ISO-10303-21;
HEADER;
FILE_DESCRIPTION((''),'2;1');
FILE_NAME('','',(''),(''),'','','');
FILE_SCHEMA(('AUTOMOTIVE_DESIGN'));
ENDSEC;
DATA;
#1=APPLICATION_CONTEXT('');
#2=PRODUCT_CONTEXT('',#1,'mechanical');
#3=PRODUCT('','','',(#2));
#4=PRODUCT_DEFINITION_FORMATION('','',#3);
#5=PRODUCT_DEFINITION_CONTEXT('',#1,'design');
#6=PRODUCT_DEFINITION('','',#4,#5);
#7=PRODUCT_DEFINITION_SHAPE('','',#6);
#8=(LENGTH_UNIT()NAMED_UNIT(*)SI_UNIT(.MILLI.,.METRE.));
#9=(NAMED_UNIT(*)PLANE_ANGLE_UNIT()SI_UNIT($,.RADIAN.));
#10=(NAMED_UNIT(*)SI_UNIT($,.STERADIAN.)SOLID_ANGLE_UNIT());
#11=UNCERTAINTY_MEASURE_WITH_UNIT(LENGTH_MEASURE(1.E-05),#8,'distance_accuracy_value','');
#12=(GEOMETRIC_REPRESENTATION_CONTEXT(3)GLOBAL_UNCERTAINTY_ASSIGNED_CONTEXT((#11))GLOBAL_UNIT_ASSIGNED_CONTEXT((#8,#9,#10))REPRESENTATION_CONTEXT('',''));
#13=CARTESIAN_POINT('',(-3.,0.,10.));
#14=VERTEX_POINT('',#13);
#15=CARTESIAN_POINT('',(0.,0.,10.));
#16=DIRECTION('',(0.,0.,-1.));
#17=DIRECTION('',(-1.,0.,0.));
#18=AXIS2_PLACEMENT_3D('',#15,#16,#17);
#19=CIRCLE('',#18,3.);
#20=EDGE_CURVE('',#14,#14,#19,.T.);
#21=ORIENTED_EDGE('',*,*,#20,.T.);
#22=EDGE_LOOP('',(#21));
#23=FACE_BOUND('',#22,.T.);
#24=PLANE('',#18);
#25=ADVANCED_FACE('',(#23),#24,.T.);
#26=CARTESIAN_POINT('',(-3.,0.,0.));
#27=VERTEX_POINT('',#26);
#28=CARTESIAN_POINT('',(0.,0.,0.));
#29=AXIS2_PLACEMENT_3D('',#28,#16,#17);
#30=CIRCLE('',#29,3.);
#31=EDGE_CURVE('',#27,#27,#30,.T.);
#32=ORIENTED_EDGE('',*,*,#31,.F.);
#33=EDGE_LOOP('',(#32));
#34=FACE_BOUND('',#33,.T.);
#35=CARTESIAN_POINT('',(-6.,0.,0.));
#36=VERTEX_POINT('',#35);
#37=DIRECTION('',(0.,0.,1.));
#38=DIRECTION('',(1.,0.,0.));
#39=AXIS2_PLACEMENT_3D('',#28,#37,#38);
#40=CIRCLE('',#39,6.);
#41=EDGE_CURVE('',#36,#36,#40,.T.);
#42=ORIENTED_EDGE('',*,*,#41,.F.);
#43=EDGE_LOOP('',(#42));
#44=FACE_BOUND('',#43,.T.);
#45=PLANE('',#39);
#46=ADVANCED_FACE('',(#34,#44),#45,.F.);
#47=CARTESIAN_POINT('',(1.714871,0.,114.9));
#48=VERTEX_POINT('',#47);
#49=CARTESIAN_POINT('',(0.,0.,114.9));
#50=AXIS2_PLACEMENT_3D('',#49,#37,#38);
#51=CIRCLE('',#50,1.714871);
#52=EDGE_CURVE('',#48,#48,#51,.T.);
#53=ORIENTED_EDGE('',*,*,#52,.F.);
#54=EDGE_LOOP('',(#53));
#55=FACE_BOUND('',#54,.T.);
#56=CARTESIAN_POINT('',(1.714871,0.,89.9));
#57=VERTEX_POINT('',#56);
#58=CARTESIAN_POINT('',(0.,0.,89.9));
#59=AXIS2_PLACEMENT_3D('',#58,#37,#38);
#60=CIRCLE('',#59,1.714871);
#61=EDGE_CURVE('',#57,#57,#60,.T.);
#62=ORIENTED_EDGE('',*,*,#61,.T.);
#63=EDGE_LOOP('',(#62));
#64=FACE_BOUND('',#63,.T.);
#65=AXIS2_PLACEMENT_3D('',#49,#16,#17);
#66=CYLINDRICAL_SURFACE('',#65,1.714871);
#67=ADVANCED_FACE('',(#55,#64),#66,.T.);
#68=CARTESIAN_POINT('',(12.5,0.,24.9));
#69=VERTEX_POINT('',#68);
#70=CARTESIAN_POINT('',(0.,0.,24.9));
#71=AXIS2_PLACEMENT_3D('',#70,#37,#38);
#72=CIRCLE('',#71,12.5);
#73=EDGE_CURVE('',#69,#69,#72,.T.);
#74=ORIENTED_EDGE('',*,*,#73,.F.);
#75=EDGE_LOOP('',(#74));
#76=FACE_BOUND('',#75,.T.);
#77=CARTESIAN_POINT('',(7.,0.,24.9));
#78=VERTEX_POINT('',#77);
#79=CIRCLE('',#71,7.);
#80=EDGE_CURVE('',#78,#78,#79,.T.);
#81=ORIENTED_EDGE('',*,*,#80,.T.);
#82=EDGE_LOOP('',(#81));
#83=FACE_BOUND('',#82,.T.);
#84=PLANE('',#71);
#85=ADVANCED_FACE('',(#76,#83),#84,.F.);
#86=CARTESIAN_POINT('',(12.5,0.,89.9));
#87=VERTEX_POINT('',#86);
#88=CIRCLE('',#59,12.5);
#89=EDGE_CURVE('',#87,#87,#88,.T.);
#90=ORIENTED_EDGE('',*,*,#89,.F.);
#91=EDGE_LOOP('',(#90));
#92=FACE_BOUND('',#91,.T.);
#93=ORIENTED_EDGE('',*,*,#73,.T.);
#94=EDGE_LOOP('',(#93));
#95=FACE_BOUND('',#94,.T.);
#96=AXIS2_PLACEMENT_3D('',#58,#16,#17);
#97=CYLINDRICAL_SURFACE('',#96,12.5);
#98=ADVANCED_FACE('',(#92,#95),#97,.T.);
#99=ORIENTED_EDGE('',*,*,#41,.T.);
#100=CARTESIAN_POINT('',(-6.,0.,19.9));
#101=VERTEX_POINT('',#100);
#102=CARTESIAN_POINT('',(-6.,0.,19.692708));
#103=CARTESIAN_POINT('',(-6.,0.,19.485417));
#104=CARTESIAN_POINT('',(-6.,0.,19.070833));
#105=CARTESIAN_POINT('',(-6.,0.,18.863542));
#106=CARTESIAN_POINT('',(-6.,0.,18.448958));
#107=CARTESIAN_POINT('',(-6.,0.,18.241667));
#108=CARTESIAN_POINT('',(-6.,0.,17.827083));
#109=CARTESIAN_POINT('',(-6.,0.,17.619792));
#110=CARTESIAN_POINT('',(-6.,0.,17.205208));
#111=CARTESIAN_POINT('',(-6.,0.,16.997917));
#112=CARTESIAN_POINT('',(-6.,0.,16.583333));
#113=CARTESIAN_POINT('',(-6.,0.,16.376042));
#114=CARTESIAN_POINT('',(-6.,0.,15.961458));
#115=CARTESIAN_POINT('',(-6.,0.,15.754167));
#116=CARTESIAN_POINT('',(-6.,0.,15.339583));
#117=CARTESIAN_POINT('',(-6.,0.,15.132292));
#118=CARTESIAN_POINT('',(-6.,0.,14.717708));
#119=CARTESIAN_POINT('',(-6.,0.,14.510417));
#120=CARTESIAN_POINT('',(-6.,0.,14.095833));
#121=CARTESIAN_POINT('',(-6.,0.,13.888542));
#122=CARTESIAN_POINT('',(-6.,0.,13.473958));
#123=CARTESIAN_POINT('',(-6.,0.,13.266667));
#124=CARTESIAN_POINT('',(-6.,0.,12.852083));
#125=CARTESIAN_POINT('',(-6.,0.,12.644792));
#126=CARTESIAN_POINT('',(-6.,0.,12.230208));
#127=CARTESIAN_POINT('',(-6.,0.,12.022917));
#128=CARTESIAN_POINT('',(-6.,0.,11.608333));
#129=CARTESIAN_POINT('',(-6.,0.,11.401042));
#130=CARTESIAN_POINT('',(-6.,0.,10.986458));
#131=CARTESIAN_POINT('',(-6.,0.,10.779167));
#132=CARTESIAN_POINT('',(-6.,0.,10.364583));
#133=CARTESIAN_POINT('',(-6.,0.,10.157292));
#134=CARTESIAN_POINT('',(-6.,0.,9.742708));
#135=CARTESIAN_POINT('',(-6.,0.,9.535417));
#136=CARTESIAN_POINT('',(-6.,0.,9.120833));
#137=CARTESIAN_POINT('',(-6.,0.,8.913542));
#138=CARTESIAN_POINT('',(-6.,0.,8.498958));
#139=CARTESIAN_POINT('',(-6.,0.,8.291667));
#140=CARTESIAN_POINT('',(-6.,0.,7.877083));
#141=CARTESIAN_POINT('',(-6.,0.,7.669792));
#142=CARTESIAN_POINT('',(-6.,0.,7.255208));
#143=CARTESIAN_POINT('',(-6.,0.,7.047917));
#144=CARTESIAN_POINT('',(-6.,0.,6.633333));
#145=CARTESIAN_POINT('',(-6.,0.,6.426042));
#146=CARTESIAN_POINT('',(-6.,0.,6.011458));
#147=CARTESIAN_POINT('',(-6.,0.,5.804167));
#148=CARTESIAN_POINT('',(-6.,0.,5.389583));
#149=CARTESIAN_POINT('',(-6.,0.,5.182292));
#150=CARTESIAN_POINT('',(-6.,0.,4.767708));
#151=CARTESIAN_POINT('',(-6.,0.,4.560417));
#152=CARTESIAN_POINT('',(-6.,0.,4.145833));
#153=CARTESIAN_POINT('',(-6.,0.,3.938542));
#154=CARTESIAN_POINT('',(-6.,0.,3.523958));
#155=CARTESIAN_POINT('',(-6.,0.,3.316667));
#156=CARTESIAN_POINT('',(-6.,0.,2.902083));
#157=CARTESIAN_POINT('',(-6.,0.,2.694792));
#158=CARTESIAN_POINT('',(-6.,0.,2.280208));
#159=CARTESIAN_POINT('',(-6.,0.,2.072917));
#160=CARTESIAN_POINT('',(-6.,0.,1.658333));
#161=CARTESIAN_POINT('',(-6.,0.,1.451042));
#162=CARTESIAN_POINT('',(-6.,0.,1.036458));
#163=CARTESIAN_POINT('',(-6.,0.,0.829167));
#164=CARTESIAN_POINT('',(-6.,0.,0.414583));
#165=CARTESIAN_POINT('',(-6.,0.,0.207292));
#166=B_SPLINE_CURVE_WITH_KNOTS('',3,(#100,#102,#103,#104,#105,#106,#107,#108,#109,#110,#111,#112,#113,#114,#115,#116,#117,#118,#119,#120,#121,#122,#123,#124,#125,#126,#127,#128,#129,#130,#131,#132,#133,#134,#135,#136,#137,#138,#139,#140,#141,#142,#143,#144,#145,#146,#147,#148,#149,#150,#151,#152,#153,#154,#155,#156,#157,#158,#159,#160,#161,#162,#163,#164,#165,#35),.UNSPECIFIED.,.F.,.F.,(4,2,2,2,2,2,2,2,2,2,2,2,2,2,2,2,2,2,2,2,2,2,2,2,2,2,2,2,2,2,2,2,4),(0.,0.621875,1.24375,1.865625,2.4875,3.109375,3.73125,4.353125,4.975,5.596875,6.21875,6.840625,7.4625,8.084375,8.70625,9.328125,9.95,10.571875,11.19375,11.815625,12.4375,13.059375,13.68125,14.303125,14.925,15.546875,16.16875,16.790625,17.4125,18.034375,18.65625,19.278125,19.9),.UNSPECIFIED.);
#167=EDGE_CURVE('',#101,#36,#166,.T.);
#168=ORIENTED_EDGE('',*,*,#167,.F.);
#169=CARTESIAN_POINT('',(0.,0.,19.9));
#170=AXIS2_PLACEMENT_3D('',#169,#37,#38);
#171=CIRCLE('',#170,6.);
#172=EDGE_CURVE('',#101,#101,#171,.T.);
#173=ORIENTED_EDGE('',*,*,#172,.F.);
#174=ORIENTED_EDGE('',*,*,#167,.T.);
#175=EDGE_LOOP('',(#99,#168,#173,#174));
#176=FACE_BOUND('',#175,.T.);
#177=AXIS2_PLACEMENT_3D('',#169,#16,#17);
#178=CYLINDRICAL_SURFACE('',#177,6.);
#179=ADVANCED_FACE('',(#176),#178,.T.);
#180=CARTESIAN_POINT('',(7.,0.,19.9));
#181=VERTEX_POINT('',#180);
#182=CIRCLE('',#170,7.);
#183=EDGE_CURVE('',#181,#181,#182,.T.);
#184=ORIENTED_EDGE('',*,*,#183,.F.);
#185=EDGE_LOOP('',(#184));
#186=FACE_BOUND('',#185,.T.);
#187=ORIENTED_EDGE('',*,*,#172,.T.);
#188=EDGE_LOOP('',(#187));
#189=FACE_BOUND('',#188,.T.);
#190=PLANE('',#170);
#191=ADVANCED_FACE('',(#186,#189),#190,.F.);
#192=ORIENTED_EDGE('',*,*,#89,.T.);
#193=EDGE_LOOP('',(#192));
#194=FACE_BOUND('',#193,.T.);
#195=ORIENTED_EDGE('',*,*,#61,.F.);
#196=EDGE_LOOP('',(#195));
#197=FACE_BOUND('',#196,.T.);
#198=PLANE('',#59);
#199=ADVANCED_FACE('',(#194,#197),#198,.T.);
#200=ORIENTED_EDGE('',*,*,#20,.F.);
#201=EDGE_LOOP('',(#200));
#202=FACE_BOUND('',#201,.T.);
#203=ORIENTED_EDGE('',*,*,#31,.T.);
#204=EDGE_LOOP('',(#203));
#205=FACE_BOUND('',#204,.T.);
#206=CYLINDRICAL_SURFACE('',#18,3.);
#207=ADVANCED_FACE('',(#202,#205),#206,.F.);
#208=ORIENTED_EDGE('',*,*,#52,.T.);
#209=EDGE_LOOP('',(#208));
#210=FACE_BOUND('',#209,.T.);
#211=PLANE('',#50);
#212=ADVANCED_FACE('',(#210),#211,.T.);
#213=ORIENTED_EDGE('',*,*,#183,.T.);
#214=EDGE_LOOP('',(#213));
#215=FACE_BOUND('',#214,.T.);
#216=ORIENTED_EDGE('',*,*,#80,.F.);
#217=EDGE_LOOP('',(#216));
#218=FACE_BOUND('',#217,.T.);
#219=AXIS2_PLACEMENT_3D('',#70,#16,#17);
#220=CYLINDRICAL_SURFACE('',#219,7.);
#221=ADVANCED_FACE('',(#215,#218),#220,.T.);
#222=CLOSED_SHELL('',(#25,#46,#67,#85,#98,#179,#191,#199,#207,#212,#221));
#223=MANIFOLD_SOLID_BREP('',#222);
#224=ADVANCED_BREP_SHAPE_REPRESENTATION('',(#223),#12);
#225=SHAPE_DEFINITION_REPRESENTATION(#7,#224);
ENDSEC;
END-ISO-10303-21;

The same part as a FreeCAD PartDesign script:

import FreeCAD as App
import Part
import Sketcher

V = App.Vector

doc = App.newDocument("Part")
body = doc.addObject("PartDesign::Body", "Body")

sketch1 = doc.addObject("Sketcher::SketchObject", "Sketch")
body.addObject(sketch1)
sketch1.AttachmentSupport = (doc.XY_Plane, [""])
sketch1.MapMode = "FlatFace"
sketch1.addGeometry(Part.Circle(V(0, 0, 0), V(0, 0, 1), 6), False)
sketch1.addConstraint([
    Sketcher.Constraint("Coincident", 0, 3, -1, 1),
    Sketcher.Constraint("Diameter", 0, 12.0),
])
pad1 = doc.addObject("PartDesign::Pad", "Pad")
body.addObject(pad1)
pad1.Profile = sketch1
pad1.Length = 19.9

sketch2 = doc.addObject("Sketcher::SketchObject", "Sketch001")
body.addObject(sketch2)
sketch2.AttachmentSupport = (doc.XY_Plane, [""])
sketch2.MapMode = "FlatFace"
sketch2.AttachmentOffset = App.Placement(V(0, 0, 19.9), App.Rotation())
sketch2.addGeometry(Part.Circle(V(0, 0, 0), V(0, 0, 1), 7), False)
sketch2.addConstraint([
    Sketcher.Constraint("Coincident", 0, 3, -1, 1),
    Sketcher.Constraint("Diameter", 0, 14.0),
])
pad2 = doc.addObject("PartDesign::Pad", "Pad001")
body.addObject(pad2)
pad2.Profile = sketch2
pad2.Length = 5

sketch3 = doc.addObject("Sketcher::SketchObject", "Sketch002")
body.addObject(sketch3)
sketch3.AttachmentSupport = (doc.XY_Plane, [""])
sketch3.MapMode = "FlatFace"
sketch3.AttachmentOffset = App.Placement(V(0, 0, 24.9), App.Rotation())
sketch3.addGeometry(Part.Circle(V(0, 0, 0), V(0, 0, 1), 12), False)
sketch3.addConstraint([
    Sketcher.Constraint("Coincident", 0, 3, -1, 1),
    Sketcher.Constraint("Diameter", 0, 25.0),
])
pad3 = doc.addObject("PartDesign::Pad", "Pad002")
body.addObject(pad3)
pad3.Profile = sketch3
pad3.Length = 65

sketch4 = doc.addObject("Sketcher::SketchObject", "Sketch003")
body.addObject(sketch4)
sketch4.AttachmentSupport = (doc.XY_Plane, [""])
sketch4.MapMode = "FlatFace"
sketch4.AttachmentOffset = App.Placement(V(0, 0, 89.9), App.Rotation())
sketch4.addGeometry(Part.Circle(V(0, 0, 0), V(0, 0, 1), 1.7), False)
sketch4.addConstraint([
    Sketcher.Constraint("Coincident", 0, 3, -1, 1),
    Sketcher.Constraint("Diameter", 0, 3.429742),
])
pad4 = doc.addObject("PartDesign::Pad", "Pad003")
body.addObject(pad4)
pad4.Profile = sketch4
pad4.Length = 25

sketch5 = doc.addObject("Sketcher::SketchObject", "Sketch004")
body.addObject(sketch5)
sketch5.AttachmentSupport = (doc.XY_Plane, [""])
sketch5.MapMode = "FlatFace"
sketch5.addGeometry(Part.Circle(V(0, 0, 0), V(0, 0, 1), 3), False)
sketch5.addConstraint([
    Sketcher.Constraint("Coincident", 0, 3, -1, 1),
    Sketcher.Constraint("Diameter", 0, 6.0),
])
pocket1 = doc.addObject("PartDesign::Pocket", "Pocket")
body.addObject(pocket1)
pocket1.Profile = sketch5
pocket1.Length = 10
pocket1.Reversed = True

doc.recompute()
